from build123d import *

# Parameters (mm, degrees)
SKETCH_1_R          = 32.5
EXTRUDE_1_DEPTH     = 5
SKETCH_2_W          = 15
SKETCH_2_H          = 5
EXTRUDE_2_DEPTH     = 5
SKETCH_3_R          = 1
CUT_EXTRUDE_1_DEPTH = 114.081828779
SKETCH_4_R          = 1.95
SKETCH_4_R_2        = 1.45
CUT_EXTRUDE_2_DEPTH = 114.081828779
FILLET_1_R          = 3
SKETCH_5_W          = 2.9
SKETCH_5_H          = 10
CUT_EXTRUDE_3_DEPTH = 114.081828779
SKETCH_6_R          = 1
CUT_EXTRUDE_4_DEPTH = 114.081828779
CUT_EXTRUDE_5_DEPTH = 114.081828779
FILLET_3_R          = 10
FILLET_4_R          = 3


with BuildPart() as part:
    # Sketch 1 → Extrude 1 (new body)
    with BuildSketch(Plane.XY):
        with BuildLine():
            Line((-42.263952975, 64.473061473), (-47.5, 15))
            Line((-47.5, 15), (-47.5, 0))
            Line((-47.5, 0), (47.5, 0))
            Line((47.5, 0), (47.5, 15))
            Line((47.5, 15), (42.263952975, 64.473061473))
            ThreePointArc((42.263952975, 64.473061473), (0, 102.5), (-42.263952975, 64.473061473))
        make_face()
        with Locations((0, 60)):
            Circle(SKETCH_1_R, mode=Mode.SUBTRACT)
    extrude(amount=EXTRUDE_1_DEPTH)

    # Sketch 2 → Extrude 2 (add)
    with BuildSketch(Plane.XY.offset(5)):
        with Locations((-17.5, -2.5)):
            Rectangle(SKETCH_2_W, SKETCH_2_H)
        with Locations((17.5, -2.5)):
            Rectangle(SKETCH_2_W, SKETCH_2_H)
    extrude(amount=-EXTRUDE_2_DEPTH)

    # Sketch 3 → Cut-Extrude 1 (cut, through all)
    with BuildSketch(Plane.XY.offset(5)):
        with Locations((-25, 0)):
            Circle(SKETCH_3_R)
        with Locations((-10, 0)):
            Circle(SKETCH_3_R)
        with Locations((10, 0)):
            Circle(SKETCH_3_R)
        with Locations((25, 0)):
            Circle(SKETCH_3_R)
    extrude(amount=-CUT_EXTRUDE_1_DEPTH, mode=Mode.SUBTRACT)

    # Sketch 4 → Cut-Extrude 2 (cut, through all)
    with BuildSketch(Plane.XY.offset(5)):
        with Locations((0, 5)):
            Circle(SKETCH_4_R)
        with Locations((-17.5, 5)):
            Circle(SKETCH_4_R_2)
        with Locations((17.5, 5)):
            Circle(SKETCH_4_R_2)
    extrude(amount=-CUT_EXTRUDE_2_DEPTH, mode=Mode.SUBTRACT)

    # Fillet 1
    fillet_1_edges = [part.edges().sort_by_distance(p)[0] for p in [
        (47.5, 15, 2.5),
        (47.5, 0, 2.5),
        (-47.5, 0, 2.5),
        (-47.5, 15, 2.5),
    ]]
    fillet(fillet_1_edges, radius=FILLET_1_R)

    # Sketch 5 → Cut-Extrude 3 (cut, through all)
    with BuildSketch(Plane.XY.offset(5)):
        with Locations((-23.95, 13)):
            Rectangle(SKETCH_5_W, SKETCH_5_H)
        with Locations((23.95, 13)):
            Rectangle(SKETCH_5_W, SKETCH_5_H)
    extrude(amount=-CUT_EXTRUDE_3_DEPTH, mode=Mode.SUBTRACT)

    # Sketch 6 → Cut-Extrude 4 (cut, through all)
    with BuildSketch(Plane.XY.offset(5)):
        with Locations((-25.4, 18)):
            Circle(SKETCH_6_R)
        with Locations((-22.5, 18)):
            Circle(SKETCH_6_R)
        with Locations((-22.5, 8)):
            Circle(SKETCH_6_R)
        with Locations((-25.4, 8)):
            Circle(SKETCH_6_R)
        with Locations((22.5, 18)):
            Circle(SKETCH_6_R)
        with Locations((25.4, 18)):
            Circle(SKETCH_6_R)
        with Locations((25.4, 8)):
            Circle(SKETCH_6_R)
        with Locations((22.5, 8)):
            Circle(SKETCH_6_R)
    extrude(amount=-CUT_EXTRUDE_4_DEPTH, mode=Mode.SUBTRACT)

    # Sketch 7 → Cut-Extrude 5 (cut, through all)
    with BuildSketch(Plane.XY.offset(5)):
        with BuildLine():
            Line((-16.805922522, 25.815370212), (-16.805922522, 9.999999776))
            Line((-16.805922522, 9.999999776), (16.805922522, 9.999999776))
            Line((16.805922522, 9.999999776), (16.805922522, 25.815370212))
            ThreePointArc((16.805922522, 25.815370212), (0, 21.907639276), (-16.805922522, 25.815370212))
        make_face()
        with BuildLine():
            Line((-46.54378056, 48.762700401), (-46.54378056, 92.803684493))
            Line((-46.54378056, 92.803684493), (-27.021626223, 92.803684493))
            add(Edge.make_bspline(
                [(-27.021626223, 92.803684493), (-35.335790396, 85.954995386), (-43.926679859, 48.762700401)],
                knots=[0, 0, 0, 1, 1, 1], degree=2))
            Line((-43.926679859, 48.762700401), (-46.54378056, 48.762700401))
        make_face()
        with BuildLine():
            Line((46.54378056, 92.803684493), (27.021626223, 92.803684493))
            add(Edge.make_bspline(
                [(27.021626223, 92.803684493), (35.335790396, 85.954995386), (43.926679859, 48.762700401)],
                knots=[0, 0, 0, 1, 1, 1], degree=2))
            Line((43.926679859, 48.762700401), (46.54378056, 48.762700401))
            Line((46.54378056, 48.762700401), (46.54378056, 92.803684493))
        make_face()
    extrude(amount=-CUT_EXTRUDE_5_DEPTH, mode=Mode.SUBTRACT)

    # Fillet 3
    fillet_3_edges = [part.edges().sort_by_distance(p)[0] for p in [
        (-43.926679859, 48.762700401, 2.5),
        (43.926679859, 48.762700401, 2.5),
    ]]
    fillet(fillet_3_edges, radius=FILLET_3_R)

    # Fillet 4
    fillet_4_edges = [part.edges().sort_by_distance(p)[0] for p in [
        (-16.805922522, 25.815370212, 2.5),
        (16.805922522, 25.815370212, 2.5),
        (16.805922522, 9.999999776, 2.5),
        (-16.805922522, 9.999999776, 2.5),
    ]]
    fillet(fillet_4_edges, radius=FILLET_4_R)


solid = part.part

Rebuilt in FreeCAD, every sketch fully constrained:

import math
import FreeCAD as App
import Part
import Sketcher
Q = App.Units.Quantity


def edges_at(feature, points):
    """Names of the edges that pass closest to the given points."""
    edges = feature.Shape.Edges
    near = lambda p: min(range(len(edges)), key=lambda i: edges[i].distToShape(Part.Vertex(*p))[0])
    return sorted({f"Edge{near(p) + 1}" for p in points})

doc = App.newDocument("Part")
params = doc.addObject("Spreadsheet::Sheet", "Params")
for row, (alias, value) in enumerate([
    ("sketch1_diameter", "65 mm"),
    ("sketch1_radius", "42.5 mm"),
    ("sketch1_width", "95 mm"),
    ("sketch1_height", "15 mm"),
    ("pad1_length", "5 mm"),
    ("sketch2_width", "15 mm"),
    ("sketch2_height", "5 mm"),
    ("pad2_length", "5 mm"),
    ("sketch3_diameter", "2 mm"),
    ("sketch4_diameter", "3.9 mm"),
    ("sketch4_diameter2", "2.9 mm"),
    ("fillet_radius", "3 mm"),
    ("sketch5_height", "10 mm"),
    ("sketch5_width", "2.9 mm"),
    ("sketch6_diameter", "2 mm"),
    ("fillet2_radius", "10 mm"),
    ("fillet3_radius", "3 mm"),
], start=1):
    params.set(f"A{row}", alias)
    params.set(f"B{row}", "=" + value)
    params.setAlias(f"B{row}", alias)

body = doc.addObject("PartDesign::Body", "Body")

# Sketch on XY plane
sketch1 = doc.addObject("Sketcher::SketchObject", "Sketch")
body.addObject(sketch1)
sketch1.AttachmentSupport = (doc.XY_Plane, [""])
sketch1.MapMode = "FlatFace"
sketch1.addGeometry([
    Part.LineSegment(App.Vector(-42, 64, 0), App.Vector(-48, 15, 0)),  # 0
    Part.LineSegment(App.Vector(-48, 15, 0), App.Vector(-48, 0, 0)),  # 1
    Part.LineSegment(App.Vector(-48, 0, 0), App.Vector(48, 0, 0)),  # 2
    Part.LineSegment(App.Vector(48, 0, 0), App.Vector(48, 15, 0)),  # 3
    Part.LineSegment(App.Vector(48, 15, 0), App.Vector(42, 64, 0)),  # 4
    Part.ArcOfCircle(Part.Circle(App.Vector(0, 60, 0), App.Vector(0, 0, 1), 42), math.radians(6), math.radians(174)),  # 5
    Part.Circle(App.Vector(0, 60, 0), App.Vector(0, 0, 1), 32),  # 6
], False)
sketch1.addConstraint([
    Sketcher.Constraint("Coincident", 0, 2, 1, 1),
    Sketcher.Constraint("Coincident", 1, 2, 2, 1),
    Sketcher.Constraint("Coincident", 2, 2, 3, 1),
    Sketcher.Constraint("Coincident", 3, 2, 4, 1),
    Sketcher.Constraint("Tangent", 4, 2, 5, 1),
    Sketcher.Constraint("Tangent", 5, 2, 0, 1),
    Sketcher.Constraint("Vertical", 1),
    Sketcher.Constraint("Horizontal", 2),
    Sketcher.Constraint("Vertical", 3),
    Sketcher.Constraint("Coincident", 6, 3, 5, 3),
    Sketcher.Constraint("Symmetric", 1, 2, 2, 2, -1, 1),
    Sketcher.Constraint("PointOnObject", 5, 3, -2),
    Sketcher.Constraint("Horizontal", 0, 2, 3, 2),
    Sketcher.Constraint("Diameter", 6, Q("65 mm")),
    Sketcher.Constraint("Radius", 5, Q("42.5 mm")),
    Sketcher.Constraint("DistanceX", 2, 1, 2, 2, Q("95 mm")),
    Sketcher.Constraint("DistanceY", 1, 2, 1, 1, Q("15 mm")),
    Sketcher.Constraint("DistanceY", -1, 1, 5, 3, Q("60 mm")),
])
sketch1.setExpression("Constraints[13]", "Params.sketch1_diameter")
sketch1.setExpression("Constraints[14]", "Params.sketch1_radius")
sketch1.setExpression("Constraints[15]", "Params.sketch1_width")
sketch1.setExpression("Constraints[16]", "Params.sketch1_height")
pad1 = doc.addObject("PartDesign::Pad", "Pad")
body.addObject(pad1)
pad1.Profile = sketch1
pad1.setExpression("Length", "Params.pad1_length")

# Sketch on XY plane
sketch2 = doc.addObject("Sketcher::SketchObject", "Sketch001")
body.addObject(sketch2)
sketch2.AttachmentSupport = (doc.XY_Plane, [""])
sketch2.MapMode = "FlatFace"
sketch2.AttachmentOffset = App.Placement(App.Vector(0, 0, 5), App.Rotation())
sketch2.addGeometry([
    Part.LineSegment(App.Vector(-25, 0, 0), App.Vector(-25, -5, 0)),  # 0
    Part.LineSegment(App.Vector(-25, -5, 0), App.Vector(-10, -5, 0)),  # 1
    Part.LineSegment(App.Vector(-10, -5, 0), App.Vector(-10, 0, 0)),  # 2
    Part.LineSegment(App.Vector(-10, 0, 0), App.Vector(-25, 0, 0)),  # 3
    Part.LineSegment(App.Vector(10, 0, 0), App.Vector(10, -5, 0)),  # 4
    Part.LineSegment(App.Vector(10, -5, 0), App.Vector(25, -5, 0)),  # 5
    Part.LineSegment(App.Vector(25, -5, 0), App.Vector(25, 0, 0)),  # 6
    Part.LineSegment(App.Vector(25, 0, 0), App.Vector(10, 0, 0)),  # 7
], False)
sketch2.addConstraint([
    Sketcher.Constraint("Coincident", 0, 2, 1, 1),
    Sketcher.Constraint("Coincident", 1, 2, 2, 1),
    Sketcher.Constraint("Coincident", 2, 2, 3, 1),
    Sketcher.Constraint("Coincident", 3, 2, 0, 1),
    Sketcher.Constraint("Coincident", 4, 2, 5, 1),
    Sketcher.Constraint("Coincident", 5, 2, 6, 1),
    Sketcher.Constraint("Coincident", 6, 2, 7, 1),
    Sketcher.Constraint("Coincident", 7, 2, 4, 1),
    Sketcher.Constraint("Vertical", 0),
    Sketcher.Constraint("Horizontal", 1),
    Sketcher.Constraint("Vertical", 2),
    Sketcher.Constraint("Horizontal", 3),
    Sketcher.Constraint("Vertical", 4),
    Sketcher.Constraint("Horizontal", 5),
    Sketcher.Constraint("Vertical", 6),
    Sketcher.Constraint("Horizontal", 7),
    Sketcher.Constraint("Symmetric", 3, 2, 6, 2, -1, 1),
    Sketcher.Constraint("Symmetric", 1, 2, 4, 2, -2),
    Sketcher.Constraint("PointOnObject", 2, 2, -1),
    Sketcher.Constraint("DistanceX", 1, 1, 1, 2, Q("15 mm")),
    Sketcher.Constraint("DistanceY", 0, 2, 0, 1, Q("5 mm")),
    Sketcher.Constraint("DistanceX", 0, 2, -1, 1, Q("25 mm")),
])
sketch2.setExpression("Constraints[19]", "Params.sketch2_width")
sketch2.setExpression("Constraints[20]", "Params.sketch2_height")
pad2 = doc.addObject("PartDesign::Pad", "Pad001")
body.addObject(pad2)
pad2.Profile = sketch2
pad2.setExpression("Length", "Params.pad2_length")
pad2.Reversed = True

# Sketch on XY plane
sketch3 = doc.addObject("Sketcher::SketchObject", "Sketch002")
body.addObject(sketch3)
sketch3.AttachmentSupport = (doc.XY_Plane, [""])
sketch3.MapMode = "FlatFace"
sketch3.AttachmentOffset = App.Placement(App.Vector(0, 0, 5), App.Rotation())
sketch3.addGeometry([
    Part.Circle(App.Vector(-25, 0, 0), App.Vector(0, 0, 1), 1),
    Part.Circle(App.Vector(-10, 0, 0), App.Vector(0, 0, 1), 1),
    Part.Circle(App.Vector(10, 0, 0), App.Vector(0, 0, 1), 1),
    Part.Circle(App.Vector(25, 0, 0), App.Vector(0, 0, 1), 1),
], False)
sketch3.addConstraint([
    Sketcher.Constraint("Equal", 0, 1),
    Sketcher.Constraint("Equal", 1, 2),
    Sketcher.Constraint("Equal", 2, 3),
    Sketcher.Constraint("Symmetric", 1, 3, 2, 3, -1, 1),
    Sketcher.Constraint("Symmetric", 0, 3, 3, 3, -1, 1),
    Sketcher.Constraint("PointOnObject", 0, 3, -1),
    Sketcher.Constraint("PointOnObject", 1, 3, -1),
    Sketcher.Constraint("Diameter", 0, Q("2 mm")),
    Sketcher.Constraint("DistanceX", 0, 3, -1, 1, Q("25 mm")),
    Sketcher.Constraint("DistanceX", 1, 3, -1, 1, Q("10 mm")),
])
sketch3.setExpression("Constraints[7]", "Params.sketch3_diameter")
pocket1 = doc.addObject("PartDesign::Pocket", "Pocket")
body.addObject(pocket1)
pocket1.Profile = sketch3
pocket1.Type = "ThroughAll"

# Sketch on XY plane
sketch4 = doc.addObject("Sketcher::SketchObject", "Sketch003")
body.addObject(sketch4)
sketch4.AttachmentSupport = (doc.XY_Plane, [""])
sketch4.MapMode = "FlatFace"
sketch4.AttachmentOffset = App.Placement(App.Vector(0, 0, 5), App.Rotation())
sketch4.addGeometry([
    Part.Circle(App.Vector(0, 5, 0), App.Vector(0, 0, 1), 1.9),
    Part.Circle(App.Vector(-17.5, 5, 0), App.Vector(0, 0, 1), 1.4),
    Part.Circle(App.Vector(17.5, 5, 0), App.Vector(0, 0, 1), 1.4),
], False)
sketch4.addConstraint([
    Sketcher.Constraint("Equal", 1, 2),
    Sketcher.Constraint("Symmetric", 1, 3, 2, 3, -2),
    Sketcher.Constraint("PointOnObject", 0, 3, -2),
    Sketcher.Constraint("Horizontal", 0, 3, 1, 3),
    Sketcher.Constraint("Diameter", 0, Q("3.9 mm")),
    Sketcher.Constraint("Diameter", 1, Q("2.9 mm")),
    Sketcher.Constraint("DistanceY", -1, 1, 0, 3, Q("5 mm")),
    Sketcher.Constraint("DistanceX", 1, 3, 2, 3, Q("35 mm")),
])
sketch4.setExpression("Constraints[4]", "Params.sketch4_diameter")
sketch4.setExpression("Constraints[5]", "Params.sketch4_diameter2")
pocket2 = doc.addObject("PartDesign::Pocket", "Pocket001")
body.addObject(pocket2)
pocket2.Profile = sketch4
pocket2.Type = "ThroughAll"
doc.recompute()

fillet = doc.addObject("PartDesign::Fillet", "Fillet")
body.addObject(fillet)
fillet.Base = (pocket2, edges_at(pocket2, [
    (47.5, 15, 2.5),
    (47.5, 0, 2.5),
    (-47.5, 0, 2.5),
    (-47.5, 15, 2.5),
]))
fillet.setExpression("Radius", "Params.fillet_radius")

# Sketch on XY plane
sketch5 = doc.addObject("Sketcher::SketchObject", "Sketch004")
body.addObject(sketch5)
sketch5.AttachmentSupport = (doc.XY_Plane, [""])
sketch5.MapMode = "FlatFace"
sketch5.AttachmentOffset = App.Placement(App.Vector(0, 0, 5), App.Rotation())
sketch5.addGeometry([
    Part.LineSegment(App.Vector(-25.4, 18, 0), App.Vector(-25.4, 8, 0)),  # 0
    Part.LineSegment(App.Vector(-25.4, 8, 0), App.Vector(-22.5, 8, 0)),  # 1
    Part.LineSegment(App.Vector(-22.5, 8, 0), App.Vector(-22.5, 18, 0)),  # 2
    Part.LineSegment(App.Vector(-22.5, 18, 0), App.Vector(-25.4, 18, 0)),  # 3
    Part.LineSegment(App.Vector(22.5, 18, 0), App.Vector(22.5, 8, 0)),  # 4
    Part.LineSegment(App.Vector(22.5, 8, 0), App.Vector(25.4, 8, 0)),  # 5
    Part.LineSegment(App.Vector(25.4, 8, 0), App.Vector(25.4, 18, 0)),  # 6
    Part.LineSegment(App.Vector(25.4, 18, 0), App.Vector(22.5, 18, 0)),  # 7
], False)
sketch5.addConstraint([
    Sketcher.Constraint("Coincident", 0, 2, 1, 1),
    Sketcher.Constraint("Coincident", 1, 2, 2, 1),
    Sketcher.Constraint("Coincident", 2, 2, 3, 1),
    Sketcher.Constraint("Coincident", 3, 2, 0, 1),
    Sketcher.Constraint("Coincident", 4, 2, 5, 1),
    Sketcher.Constraint("Coincident", 5, 2, 6, 1),
    Sketcher.Constraint("Coincident", 6, 2, 7, 1),
    Sketcher.Constraint("Coincident", 7, 2, 4, 1),
    Sketcher.Constraint("Vertical", 0),
    Sketcher.Constraint("Horizontal", 1),
    Sketcher.Constraint("Vertical", 2),
    Sketcher.Constraint("Horizontal", 3),
    Sketcher.Constraint("Vertical", 4),
    Sketcher.Constraint("Horizontal", 5),
    Sketcher.Constraint("Vertical", 6),
    Sketcher.Constraint("Horizontal", 7),
    Sketcher.Constraint("Symmetric", 1, 2, 4, 2, -2),
    Sketcher.Constraint("Symmetric", 3, 2, 6, 2, -2),
    Sketcher.Constraint("DistanceY", 0, 2, 0, 1, Q("10 mm")),
    Sketcher.Constraint("DistanceX", 1, 1, 1, 2, Q("2.9 mm")),
    Sketcher.Constraint("DistanceY", -1, 1, 0, 2, Q("8 mm")),
    Sketcher.Constraint("DistanceX", 1, 2, 4, 2, Q("45 mm")),
])
sketch5.setExpression("Constraints[18]", "Params.sketch5_height")
sketch5.setExpression("Constraints[19]", "Params.sketch5_width")
pocket3 = doc.addObject("PartDesign::Pocket", "Pocket002")
body.addObject(pocket3)
pocket3.Profile = sketch5
pocket3.Type = "ThroughAll"

# Sketch on XY plane
sketch6 = doc.addObject("Sketcher::SketchObject", "Sketch005")
body.addObject(sketch6)
sketch6.AttachmentSupport = (doc.XY_Plane, [""])
sketch6.MapMode = "FlatFace"
sketch6.AttachmentOffset = App.Placement(App.Vector(0, 0, 5), App.Rotation())
sketch6.addGeometry([
    Part.Circle(App.Vector(-25.4, 18, 0), App.Vector(0, 0, 1), 1),  # 0
    Part.Circle(App.Vector(-22.5, 18, 0), App.Vector(0, 0, 1), 1),  # 1
    Part.Circle(App.Vector(-22.5, 8, 0), App.Vector(0, 0, 1), 1),  # 2
    Part.Circle(App.Vector(-25.4, 8, 0), App.Vector(0, 0, 1), 1),  # 3
    Part.Circle(App.Vector(22.5, 18, 0), App.Vector(0, 0, 1), 1),  # 4
    Part.Circle(App.Vector(25.4, 18, 0), App.Vector(0, 0, 1), 1),  # 5
    Part.Circle(App.Vector(25.4, 8, 0), App.Vector(0, 0, 1), 1),  # 6
    Part.Circle(App.Vector(22.5, 8, 0), App.Vector(0, 0, 1), 1),  # 7
], False)
sketch6.addConstraint([
    Sketcher.Constraint("Equal", 0, 1),
    Sketcher.Constraint("Equal", 1, 2),
    Sketcher.Constraint("Equal", 2, 3),
    Sketcher.Constraint("Equal", 3, 4),
    Sketcher.Constraint("Equal", 4, 5),
    Sketcher.Constraint("Equal", 5, 6),
    Sketcher.Constraint("Equal", 6, 7),
    Sketcher.Constraint("Symmetric", 1, 3, 4, 3, -2),
    Sketcher.Constraint("Symmetric", 0, 3, 5, 3, -2),
    Sketcher.Constraint("Symmetric", 3, 3, 6, 3, -2),
    Sketcher.Constraint("Symmetric", 2, 3, 7, 3, -2),
    Sketcher.Constraint("Horizontal", 0, 3, 1, 3),
    Sketcher.Constraint("Horizontal", 2, 3, 3, 3),
    Sketcher.Constraint("Vertical", 1, 3, 2, 3),
    Sketcher.Constraint("Vertical", 0, 3, 3, 3),
    Sketcher.Constraint("Diameter", 0, Q("2 mm")),
    Sketcher.Constraint("DistanceY", -1, 1, 0, 3, Q("18 mm")),
    Sketcher.Constraint("DistanceY", -1, 1, 2, 3, Q("8 mm")),
    Sketcher.Constraint("DistanceX", 1, 3, 4, 3, Q("45 mm")),
    Sketcher.Constraint("DistanceX", 0, 3, -1, 1, Q("25.4 mm")),
])
sketch6.setExpression("Constraints[15]", "Params.sketch6_diameter")
pocket4 = doc.addObject("PartDesign::Pocket", "Pocket003")
body.addObject(pocket4)
pocket4.Profile = sketch6
pocket4.Type = "ThroughAll"

# Sketch on XY plane
sketch7 = doc.addObject("Sketcher::SketchObject", "Sketch006")
body.addObject(sketch7)
sketch7.AttachmentSupport = (doc.XY_Plane, [""])
sketch7.MapMode = "FlatFace"
sketch7.AttachmentOffset = App.Placement(App.Vector(0, 0, 5), App.Rotation())
sketch7.addGeometry([
    Part.LineSegment(App.Vector(-16.805923, 25.81537, 0), App.Vector(-16.805923, 10, 0)),  # 0
    Part.LineSegment(App.Vector(-16.805923, 10, 0), App.Vector(16.805923, 10, 0)),  # 1
    Part.LineSegment(App.Vector(16.805923, 10, 0), App.Vector(16.805923, 25.81537, 0)),  # 2
    Part.ArcOfCircle(Part.Circle(App.Vector(0, 60, 0), App.Vector(0, 0, 1), 38.092361), math.radians(-116.179755), math.radians(-63.820245)),  # 3
    Part.LineSegment(App.Vector(-46.543781, 92.803684, 0), App.Vector(-46.543781, 48.7627, 0)),  # 4
    Part.LineSegment(App.Vector(-46.543781, 48.7627, 0), App.Vector(-43.92668, 48.7627, 0)),  # 5
    Part.BSplineCurve([App.Vector(-27.021626, 92.803684, 0), App.Vector(-35.33579, 85.954995, 0), App.Vector(-43.92668, 48.7627, 0)], [3, 3], [0, 1], False, 2, [1, 1, 1], False),  # 6
    Part.LineSegment(App.Vector(-27.021626, 92.803684, 0), App.Vector(-46.543781, 92.803684, 0)),  # 7
    Part.LineSegment(App.Vector(46.543781, 92.803684, 0), App.Vector(27.021626, 92.803684, 0)),  # 8
    Part.BSplineCurve([App.Vector(27.021626, 92.803684, 0), App.Vector(35.33579, 85.954995, 0), App.Vector(43.92668, 48.7627, 0)], [3, 3], [0, 1], False, 2, [1, 1, 1], False),  # 9
    Part.LineSegment(App.Vector(43.92668, 48.7627, 0), App.Vector(46.543781, 48.7627, 0)),  # 10
    Part.LineSegment(App.Vector(46.543781, 48.7627, 0), App.Vector(46.543781, 92.803684, 0)),  # 11
], False)
sketch7.addConstraint([
    Sketcher.Constraint("Block", 6),
    Sketcher.Constraint("Block", 9),
    Sketcher.Constraint("Coincident", 0, 2, 1, 1),
    Sketcher.Constraint("Coincident", 1, 2, 2, 1),
    Sketcher.Constraint("Coincident", 2, 2, 3, 2),
    Sketcher.Constraint("Coincident", 3, 1, 0, 1),
    Sketcher.Constraint("Coincident", 4, 2, 5, 1),
    Sketcher.Constraint("Coincident", 5, 2, 6, 2),
    Sketcher.Constraint("Coincident", 6, 1, 7, 1),
    Sketcher.Constraint("Coincident", 7, 2, 4, 1),
    Sketcher.Constraint("Coincident", 8, 2, 9, 1),
    Sketcher.Constraint("Coincident", 9, 2, 10, 1),
    Sketcher.Constraint("Coincident", 10, 2, 11, 1),
    Sketcher.Constraint("Coincident", 11, 2, 8, 1),
    Sketcher.Constraint("Vertical", 0),
    Sketcher.Constraint("Horizontal", 1),
    Sketcher.Constraint("Vertical", 2),
    Sketcher.Constraint("Vertical", 4),
    Sketcher.Constraint("Horizontal", 5),
    Sketcher.Constraint("Horizontal", 7),
    Sketcher.Constraint("Horizontal", 8),
    Sketcher.Constraint("Horizontal", 10),
    Sketcher.Constraint("Vertical", 11),
    Sketcher.Constraint("Symmetric", 2, 2, 3, 1, -2),
    Sketcher.Constraint("Equal", 7, 8),
    Sketcher.Constraint("DistanceY", -1, 1, 3, 3, Q("60 mm")),
    Sketcher.Constraint("DistanceY", -1, 1, 0, 2, Q("10 mm")),
    Sketcher.Constraint("Radius", 3, Q("38.092361 mm")),
    Sketcher.Constraint("DistanceX", 5, 1, 5, 2, Q("2.617101 mm")),
    Sketcher.Constraint("DistanceY", 0, 2, 0, 1, Q("15.81537 mm")),
])
pocket5 = doc.addObject("PartDesign::Pocket", "Pocket004")
body.addObject(pocket5)
pocket5.Profile = sketch7
pocket5.Type = "ThroughAll"
doc.recompute()

fillet2 = doc.addObject("PartDesign::Fillet", "Fillet001")
body.addObject(fillet2)
fillet2.Base = (pocket5, edges_at(pocket5, [(-43.927, 48.763, 2.5), (43.927, 48.763, 2.5)]))
fillet2.setExpression("Radius", "Params.fillet2_radius")
doc.recompute()

fillet3 = doc.addObject("PartDesign::Fillet", "Fillet002")
body.addObject(fillet3)
fillet3.Base = (fillet2, edges_at(fillet2, [
    (-16.806, 25.815, 2.5),
    (16.806, 25.815, 2.5),
    (16.806, 10, 2.5),
    (-16.806, 10, 2.5),
]))
fillet3.setExpression("Radius", "Params.fillet3_radius")

doc.recompute()
